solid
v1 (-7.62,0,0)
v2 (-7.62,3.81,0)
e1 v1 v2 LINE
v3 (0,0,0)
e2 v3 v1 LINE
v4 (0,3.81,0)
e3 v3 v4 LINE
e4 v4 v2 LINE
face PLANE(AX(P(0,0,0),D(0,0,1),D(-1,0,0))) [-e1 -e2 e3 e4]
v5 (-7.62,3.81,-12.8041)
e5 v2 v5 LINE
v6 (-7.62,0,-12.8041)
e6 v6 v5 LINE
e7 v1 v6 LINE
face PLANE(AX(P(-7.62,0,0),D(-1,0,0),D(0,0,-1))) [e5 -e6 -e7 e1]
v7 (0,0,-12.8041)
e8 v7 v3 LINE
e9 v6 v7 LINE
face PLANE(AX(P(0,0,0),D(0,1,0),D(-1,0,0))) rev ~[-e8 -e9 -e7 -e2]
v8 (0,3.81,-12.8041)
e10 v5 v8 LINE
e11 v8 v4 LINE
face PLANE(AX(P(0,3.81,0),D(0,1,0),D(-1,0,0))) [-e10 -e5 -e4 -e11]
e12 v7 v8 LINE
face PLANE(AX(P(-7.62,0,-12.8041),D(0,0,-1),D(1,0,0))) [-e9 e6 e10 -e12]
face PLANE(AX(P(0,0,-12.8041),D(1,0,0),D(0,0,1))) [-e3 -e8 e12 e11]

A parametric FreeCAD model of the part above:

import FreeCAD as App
import Part
import Sketcher
Q = App.Units.Quantity

doc = App.newDocument("Part")
body = doc.addObject("PartDesign::Body", "Body")

sketch1 = doc.addObject("Sketcher::SketchObject", "Sketch")
body.addObject(sketch1)
sketch1.AttachmentSupport = (doc.XZ_Plane, [""])
sketch1.MapMode = "FlatFace"
sketch1.addGeometry([
    Part.LineSegment(App.Vector(-8, 0, 0), App.Vector(0, 0, 0)),
    Part.LineSegment(App.Vector(0, 0, 0), App.Vector(0, -13, 0)),
    Part.LineSegment(App.Vector(0, -13, 0), App.Vector(-8, -13, 0)),
    Part.LineSegment(App.Vector(-8, -13, 0), App.Vector(-8, 0, 0)),
], False)
sketch1.addConstraint([
    Sketcher.Constraint("Coincident", 0, 2, 1, 1),
    Sketcher.Constraint("Coincident", 1, 2, 2, 1),
    Sketcher.Constraint("Coincident", 2, 2, 3, 1),
    Sketcher.Constraint("Coincident", 3, 2, 0, 1),
    Sketcher.Constraint("Horizontal", 0),
    Sketcher.Constraint("Vertical", 1),
    Sketcher.Constraint("Horizontal", 2),
    Sketcher.Constraint("Vertical", 3),
    Sketcher.Constraint("Coincident", 0, 2, -1, 1),
    Sketcher.Constraint("DistanceX", 0, 1, 0, 2, Q("0.3 in")),
    Sketcher.Constraint("DistanceY", 1, 2, 1, 1, Q("0.5041 in")),
])
pad1 = doc.addObject("PartDesign::Pad", "Pad")
body.addObject(pad1)
pad1.Profile = sketch1
pad1.Length = Q("0.15 in")
pad1.Reversed = True

doc.recompute()
